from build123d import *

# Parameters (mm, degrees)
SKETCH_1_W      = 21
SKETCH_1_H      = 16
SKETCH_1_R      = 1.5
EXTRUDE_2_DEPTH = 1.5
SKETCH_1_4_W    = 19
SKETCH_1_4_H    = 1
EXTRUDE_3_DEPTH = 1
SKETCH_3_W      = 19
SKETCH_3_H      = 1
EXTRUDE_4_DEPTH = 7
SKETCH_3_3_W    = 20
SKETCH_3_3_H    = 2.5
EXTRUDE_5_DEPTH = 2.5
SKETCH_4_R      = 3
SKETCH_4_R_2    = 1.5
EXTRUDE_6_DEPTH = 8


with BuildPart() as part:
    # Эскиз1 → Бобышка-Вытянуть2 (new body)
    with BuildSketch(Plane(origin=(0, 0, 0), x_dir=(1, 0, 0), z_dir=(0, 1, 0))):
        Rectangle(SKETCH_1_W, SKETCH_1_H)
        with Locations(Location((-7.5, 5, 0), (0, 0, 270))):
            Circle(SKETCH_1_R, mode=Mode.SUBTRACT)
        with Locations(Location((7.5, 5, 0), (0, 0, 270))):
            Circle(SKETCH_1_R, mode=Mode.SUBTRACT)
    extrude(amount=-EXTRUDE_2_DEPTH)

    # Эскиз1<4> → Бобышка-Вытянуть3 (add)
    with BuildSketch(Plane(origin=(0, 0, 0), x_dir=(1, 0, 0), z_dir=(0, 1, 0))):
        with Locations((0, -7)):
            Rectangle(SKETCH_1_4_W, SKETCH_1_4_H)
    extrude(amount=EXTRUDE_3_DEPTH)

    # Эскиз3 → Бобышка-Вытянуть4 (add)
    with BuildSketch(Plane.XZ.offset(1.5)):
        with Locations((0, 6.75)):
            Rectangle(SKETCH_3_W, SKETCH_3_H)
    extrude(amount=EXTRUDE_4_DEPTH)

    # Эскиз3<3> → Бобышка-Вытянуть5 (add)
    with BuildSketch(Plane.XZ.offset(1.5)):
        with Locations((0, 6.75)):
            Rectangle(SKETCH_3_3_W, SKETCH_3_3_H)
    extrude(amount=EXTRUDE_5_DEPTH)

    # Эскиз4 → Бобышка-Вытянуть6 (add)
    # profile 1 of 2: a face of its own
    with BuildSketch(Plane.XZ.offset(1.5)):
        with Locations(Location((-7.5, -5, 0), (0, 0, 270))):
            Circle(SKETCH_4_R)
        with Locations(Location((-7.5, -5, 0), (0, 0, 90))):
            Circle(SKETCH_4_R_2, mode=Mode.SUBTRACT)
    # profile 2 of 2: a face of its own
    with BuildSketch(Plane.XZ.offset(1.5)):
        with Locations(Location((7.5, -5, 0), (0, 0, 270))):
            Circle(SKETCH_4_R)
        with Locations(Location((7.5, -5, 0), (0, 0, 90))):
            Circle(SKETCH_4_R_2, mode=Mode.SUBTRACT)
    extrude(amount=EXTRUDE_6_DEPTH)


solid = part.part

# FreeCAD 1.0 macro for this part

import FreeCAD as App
import Part
import Sketcher
from FreeCAD import Vector


def add_polygon(sketch, points):
    """Adds a closed chain of lines whose ends are joined by coincident constraints."""
    first, n = sketch.GeometryCount, len(points)
    for a, b in zip(points, points[1:] + points[:1]):
        sketch.addGeometry(Part.LineSegment(App.Vector(*a, 0), App.Vector(*b, 0)), False)
    for i in range(n):
        sketch.addConstraint(Sketcher.Constraint("Coincident", first + i, 2, first + (i + 1) % n, 1))

doc = App.newDocument("Part")
body = doc.addObject("PartDesign::Body", "Body")

# Sketch on XZ plane
sketch1 = doc.addObject("Sketcher::SketchObject", "Sketch")
body.addObject(sketch1)
sketch1.AttachmentSupport = (doc.XZ_Plane, [""])
sketch1.MapMode = "FlatFace"
add_polygon(sketch1, [(-10.5, -8), (-10.5, 8), (10.5, 8), (10.5, -8)])  # lines 0-3
sketch1.addGeometry(Part.Circle(Vector(-7.5, -5, 0), Vector(0, 0, 1), 1.5), False)  # 4
sketch1.addGeometry(Part.Circle(Vector(7.5, -5, 0), Vector(0, 0, 1), 1.5), False)  # 5
sketch1.addConstraint(Sketcher.Constraint("Vertical", 0))
sketch1.addConstraint(Sketcher.Constraint("Horizontal", 1))
sketch1.addConstraint(Sketcher.Constraint("Vertical", 2))
sketch1.addConstraint(Sketcher.Constraint("Horizontal", 3))
sketch1.addConstraint(Sketcher.Constraint("Equal", 4, 5))
sketch1.addConstraint(Sketcher.Constraint("Symmetric", 0, 2, 2, 2, -1, 1))
sketch1.addConstraint(Sketcher.Constraint("Symmetric", 4, 3, 5, 3, -2))
sketch1.addConstraint(Sketcher.Constraint("Diameter", 4, 3.0))
sketch1.addConstraint(Sketcher.Constraint("DistanceX", 1, 1, 1, 2, 21.0))
sketch1.addConstraint(Sketcher.Constraint("DistanceY", 0, 1, 0, 2, 16.0))
sketch1.addConstraint(Sketcher.Constraint("DistanceY", 4, 3, -1, 1, 5.0))
sketch1.addConstraint(Sketcher.Constraint("DistanceX", 4, 3, 5, 3, 15.0))
pad1 = doc.addObject("PartDesign::Pad", "Pad")
body.addObject(pad1)
pad1.Profile = sketch1
pad1.Length = 1.5

# Sketch on XZ plane
sketch2 = doc.addObject("Sketcher::SketchObject", "Sketch001")
body.addObject(sketch2)
sketch2.AttachmentSupport = (doc.XZ_Plane, [""])
sketch2.MapMode = "FlatFace"
add_polygon(sketch2, [(-9.5, 6.5), (-9.5, 7.5), (9.5, 7.5), (9.5, 6.5)])  # lines 0-3
sketch2.addConstraint(Sketcher.Constraint("Vertical", 0))
sketch2.addConstraint(Sketcher.Constraint("Horizontal", 1))
sketch2.addConstraint(Sketcher.Constraint("Vertical", 2))
sketch2.addConstraint(Sketcher.Constraint("Horizontal", 3))
sketch2.addConstraint(Sketcher.Constraint("DistanceX", 1, 1, 1, 2, 19.0))
sketch2.addConstraint(Sketcher.Constraint("DistanceY", 0, 1, 0, 2, 1.0))
sketch2.addConstraint(Sketcher.Constraint("DistanceX", 0, 2, -1, 1, 9.5))
sketch2.addConstraint(Sketcher.Constraint("DistanceY", -1, 1, 0, 2, 7.5))
pad2 = doc.addObject("PartDesign::Pad", "Pad001")
body.addObject(pad2)
pad2.Profile = sketch2
pad2.Length = 1
pad2.Reversed = True

# Sketch on XZ plane
sketch3 = doc.addObject("Sketcher::SketchObject", "Sketch002")
body.addObject(sketch3)
sketch3.AttachmentSupport = (doc.XZ_Plane, [""])
sketch3.MapMode = "FlatFace"
sketch3.AttachmentOffset = App.Placement(Vector(0, 0, 1.5), App.Rotation())
add_polygon(sketch3, [(-9.5, 7.25), (-9.5, 6.25), (9.5, 6.25), (9.5, 7.25)])  # lines 0-3
sketch3.addConstraint(Sketcher.Constraint("Vertical", 0))
sketch3.addConstraint(Sketcher.Constraint("Horizontal", 1))
sketch3.addConstraint(Sketcher.Constraint("Vertical", 2))
sketch3.addConstraint(Sketcher.Constraint("Horizontal", 3))
sketch3.addConstraint(Sketcher.Constraint("DistanceX", 1, 1, 1, 2, 19.0))
sketch3.addConstraint(Sketcher.Constraint("DistanceY", 0, 2, 0, 1, 1.0))
sketch3.addConstraint(Sketcher.Constraint("DistanceX", 0, 2, -1, 1, 9.5))
sketch3.addConstraint(Sketcher.Constraint("DistanceY", -1, 1, 0, 2, 6.25))
pad3 = doc.addObject("PartDesign::Pad", "Pad002")
body.addObject(pad3)
pad3.Profile = sketch3
pad3.Length = 7

# Sketch on XZ plane
sketch4 = doc.addObject("Sketcher::SketchObject", "Sketch003")
body.addObject(sketch4)
sketch4.AttachmentSupport = (doc.XZ_Plane, [""])
sketch4.MapMode = "FlatFace"
sketch4.AttachmentOffset = App.Placement(Vector(0, 0, 1.5), App.Rotation())
add_polygon(sketch4, [(-10, 8), (-10, 5.5), (10, 5.5), (10, 8)])  # lines 0-3
sketch4.addConstraint(Sketcher.Constraint("Vertical", 0))
sketch4.addConstraint(Sketcher.Constraint("Horizontal", 1))
sketch4.addConstraint(Sketcher.Constraint("Vertical", 2))
sketch4.addConstraint(Sketcher.Constraint("Horizontal", 3))
sketch4.addConstraint(Sketcher.Constraint("DistanceX", 1, 1, 1, 2, 20.0))
sketch4.addConstraint(Sketcher.Constraint("DistanceY", 0, 2, 0, 1, 2.5))
sketch4.addConstraint(Sketcher.Constraint("DistanceX", 0, 2, -1, 1, 10.0))
sketch4.addConstraint(Sketcher.Constraint("DistanceY", -1, 1, 2, 2, 8.0))
pad4 = doc.addObject("PartDesign::Pad", "Pad003")
body.addObject(pad4)
pad4.Profile = sketch4
pad4.Length = 2.5

# Sketch on XZ plane
sketch5 = doc.addObject("Sketcher::SketchObject", "Sketch004")
body.addObject(sketch5)
sketch5.AttachmentSupport = (doc.XZ_Plane, [""])
sketch5.MapMode = "FlatFace"
sketch5.AttachmentOffset = App.Placement(Vector(0, 0, 1.5), App.Rotation())
sketch5.addGeometry(Part.Circle(Vector(-7.5, -5, 0), Vector(0, 0, 1), 3), False)
sketch5.addGeometry(Part.Circle(Vector(-7.5, -5, 0), Vector(0, 0, 1), 1.5), False)
sketch5.addGeometry(Part.Circle(Vector(7.5, -5, 0), Vector(0, 0, 1), 3), False)
sketch5.addGeometry(Part.Circle(Vector(7.5, -5, 0), Vector(0, 0, 1), 1.5), False)
sketch5.addConstraint(Sketcher.Constraint("Coincident", 1, 3, 0, 3))
sketch5.addConstraint(Sketcher.Constraint("Coincident", 3, 3, 2, 3))
sketch5.addConstraint(Sketcher.Constraint("Equal", 0, 2))
sketch5.addConstraint(Sketcher.Constraint("Equal", 1, 3))
sketch5.addConstraint(Sketcher.Constraint("Symmetric", 0, 3, 2, 3, -2))
sketch5.addConstraint(Sketcher.Constraint("Diameter", 0, 6.0))
sketch5.addConstraint(Sketcher.Constraint("Diameter", 1, 3.0))
sketch5.addConstraint(Sketcher.Constraint("DistanceY", 0, 3, -1, 1, 5.0))
sketch5.addConstraint(Sketcher.Constraint("DistanceX", 0, 3, 2, 3, 15.0))
pad5 = doc.addObject("PartDesign::Pad", "Pad004")
body.addObject(pad5)
pad5.Profile = sketch5
pad5.Length = 8

doc.recompute()
